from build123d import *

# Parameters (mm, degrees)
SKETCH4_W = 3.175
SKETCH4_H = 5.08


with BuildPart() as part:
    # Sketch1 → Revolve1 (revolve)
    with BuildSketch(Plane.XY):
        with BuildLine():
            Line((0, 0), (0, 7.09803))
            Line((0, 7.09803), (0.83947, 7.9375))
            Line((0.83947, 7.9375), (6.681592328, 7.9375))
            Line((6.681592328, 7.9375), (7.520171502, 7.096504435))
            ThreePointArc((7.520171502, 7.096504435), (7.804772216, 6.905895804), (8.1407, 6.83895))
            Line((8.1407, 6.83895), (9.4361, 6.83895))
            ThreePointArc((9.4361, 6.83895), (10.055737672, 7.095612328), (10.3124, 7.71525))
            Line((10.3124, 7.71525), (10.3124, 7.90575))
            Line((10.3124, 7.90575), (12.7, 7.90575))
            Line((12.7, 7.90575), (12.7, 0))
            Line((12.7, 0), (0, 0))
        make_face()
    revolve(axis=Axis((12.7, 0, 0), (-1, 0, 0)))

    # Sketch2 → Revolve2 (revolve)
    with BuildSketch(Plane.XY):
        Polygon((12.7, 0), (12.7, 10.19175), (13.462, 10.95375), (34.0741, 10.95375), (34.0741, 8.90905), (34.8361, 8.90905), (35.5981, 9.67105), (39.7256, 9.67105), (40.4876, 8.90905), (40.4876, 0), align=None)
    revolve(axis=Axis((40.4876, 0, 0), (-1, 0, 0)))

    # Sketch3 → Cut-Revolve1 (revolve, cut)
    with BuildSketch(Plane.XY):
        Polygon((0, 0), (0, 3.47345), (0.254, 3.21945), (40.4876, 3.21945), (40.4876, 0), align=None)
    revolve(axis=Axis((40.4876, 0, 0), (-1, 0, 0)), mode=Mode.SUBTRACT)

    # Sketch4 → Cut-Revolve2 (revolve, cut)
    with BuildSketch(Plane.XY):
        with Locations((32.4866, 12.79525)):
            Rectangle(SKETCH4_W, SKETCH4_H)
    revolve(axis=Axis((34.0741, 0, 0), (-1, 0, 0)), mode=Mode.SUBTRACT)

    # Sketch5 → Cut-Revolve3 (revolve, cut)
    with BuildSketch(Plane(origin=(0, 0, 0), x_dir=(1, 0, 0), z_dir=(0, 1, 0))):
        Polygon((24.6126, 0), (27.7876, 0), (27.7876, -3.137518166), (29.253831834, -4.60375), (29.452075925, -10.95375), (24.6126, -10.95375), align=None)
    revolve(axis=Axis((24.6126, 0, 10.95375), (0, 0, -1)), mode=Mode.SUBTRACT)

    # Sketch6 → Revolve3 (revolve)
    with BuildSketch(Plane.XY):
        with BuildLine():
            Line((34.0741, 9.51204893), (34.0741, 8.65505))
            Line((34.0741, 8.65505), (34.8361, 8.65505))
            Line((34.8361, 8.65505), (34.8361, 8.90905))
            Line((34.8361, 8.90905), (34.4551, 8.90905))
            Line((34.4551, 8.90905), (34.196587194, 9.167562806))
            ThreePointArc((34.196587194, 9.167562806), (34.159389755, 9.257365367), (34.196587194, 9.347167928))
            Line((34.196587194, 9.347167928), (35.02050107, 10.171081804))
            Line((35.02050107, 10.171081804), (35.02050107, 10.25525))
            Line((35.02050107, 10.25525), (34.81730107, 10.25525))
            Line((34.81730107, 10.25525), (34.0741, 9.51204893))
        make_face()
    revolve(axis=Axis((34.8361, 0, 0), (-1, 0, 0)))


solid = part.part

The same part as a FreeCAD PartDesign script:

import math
import FreeCAD as App
import Part
import Sketcher
from FreeCAD import Vector
Q = App.Units.Quantity


def add_polygon(sketch, points):
    """Adds a closed chain of lines whose ends are joined by coincident constraints."""
    first, n = sketch.GeometryCount, len(points)
    for a, b in zip(points, points[1:] + points[:1]):
        sketch.addGeometry(Part.LineSegment(App.Vector(*a, 0), App.Vector(*b, 0)), False)
    for i in range(n):
        sketch.addConstraint(Sketcher.Constraint("Coincident", first + i, 2, first + (i + 1) % n, 1))

doc = App.newDocument("Part")
body = doc.addObject("PartDesign::Body", "Body")

# Sketch on XY plane
sketch1 = doc.addObject("Sketcher::SketchObject", "Sketch")
body.addObject(sketch1)
sketch1.AttachmentSupport = (doc.XY_Plane, [""])
sketch1.MapMode = "FlatFace"
sketch1.addGeometry(Part.LineSegment(Vector(0, 7.1, 0), Vector(0, 0, 0)), False)
sketch1.addGeometry(Part.LineSegment(Vector(0, 0, 0), Vector(12.7, 0, 0)), False)
sketch1.addGeometry(Part.LineSegment(Vector(12.7, 0, 0), Vector(12.7, 7.91, 0)), False)
sketch1.addGeometry(Part.LineSegment(Vector(12.7, 7.91, 0), Vector(10.31, 7.91, 0)), False)
sketch1.addGeometry(Part.LineSegment(Vector(10.31, 7.91, 0), Vector(10.31, 7.72, 0)), False)
sketch1.addGeometry(Part.ArcOfCircle(Part.Circle(Vector(9.44, 7.72, 0), Vector(0, 0, 1), 0.88), math.radians(-90), math.radians(0)), False)
sketch1.addGeometry(Part.LineSegment(Vector(9.44, 6.84, 0), Vector(8.14, 6.84, 0)), False)
sketch1.addGeometry(Part.ArcOfCircle(Part.Circle(Vector(8.14, 7.72, 0), Vector(0, 0, 1), 0.88), math.radians(-135), math.radians(-90)), False)
sketch1.addGeometry(Part.LineSegment(Vector(7.52, 7.1, 0), Vector(6.68, 7.94, 0)), False)
sketch1.addGeometry(Part.LineSegment(Vector(6.68, 7.94, 0), Vector(0.84, 7.94, 0)), False)
sketch1.addGeometry(Part.LineSegment(Vector(0.84, 7.94, 0), Vector(0, 7.1, 0)), False)
sketch1.addConstraint(Sketcher.Constraint("Coincident", 0, 2, 1, 1))
sketch1.addConstraint(Sketcher.Constraint("Coincident", 1, 2, 2, 1))
sketch1.addConstraint(Sketcher.Constraint("Coincident", 2, 2, 3, 1))
sketch1.addConstraint(Sketcher.Constraint("Coincident", 3, 2, 4, 1))
sketch1.addConstraint(Sketcher.Constraint("Tangent", 4, 2, 5, 2))
sketch1.addConstraint(Sketcher.Constraint("Tangent", 5, 1, 6, 1))
sketch1.addConstraint(Sketcher.Constraint("Tangent", 6, 2, 7, 2))
sketch1.addConstraint(Sketcher.Constraint("Tangent", 7, 1, 8, 1))
sketch1.addConstraint(Sketcher.Constraint("Coincident", 8, 2, 9, 1))
sketch1.addConstraint(Sketcher.Constraint("Coincident", 9, 2, 10, 1))
sketch1.addConstraint(Sketcher.Constraint("Coincident", 10, 2, 0, 1))
sketch1.addConstraint(Sketcher.Constraint("Vertical", 0))
sketch1.addConstraint(Sketcher.Constraint("Horizontal", 1))
sketch1.addConstraint(Sketcher.Constraint("Vertical", 2))
sketch1.addConstraint(Sketcher.Constraint("Horizontal", 3))
sketch1.addConstraint(Sketcher.Constraint("Vertical", 4))
sketch1.addConstraint(Sketcher.Constraint("Horizontal", 6))
sketch1.addConstraint(Sketcher.Constraint("Horizontal", 9))
sketch1.addConstraint(Sketcher.Constraint("Coincident", 0, 2, -1, 1))
sketch1.addConstraint(Sketcher.Constraint("Equal", 5, 7))
sketch1.addConstraint(Sketcher.Constraint("DistanceX", 1, 1, 1, 2, Q("0.5 in")))
sketch1.addConstraint(Sketcher.Constraint("Angle", 10, Q("-135 deg")))
sketch1.addConstraint(Sketcher.Constraint("Radius", 5, Q("0.0345 in")))
sketch1.addConstraint(Sketcher.Constraint("DistanceX", 3, 2, 3, 1, Q("0.094 in")))
sketch1.addConstraint(Sketcher.Constraint("DistanceX", 6, 2, 6, 1, Q("0.051 in")))
sketch1.addConstraint(Sketcher.Constraint("DistanceY", 4, 2, 4, 1, Q("0.0075 in")))
sketch1.addConstraint(Sketcher.Constraint("DistanceY", -1, 1, 8, 2, Q("0.3125 in")))
sketch1.addConstraint(Sketcher.Constraint("DistanceY", 6, 2, 10, 2, Q("0.0102 in")))
sketch1.addConstraint(Sketcher.Constraint("DistanceY", 0, 2, 0, 1, 7.09803))
sketch1.addConstraint(Sketcher.Constraint("DistanceX", 9, 2, 7, 1, 6.680702))
revolution = doc.addObject("PartDesign::Revolution", "Revolution")
body.addObject(revolution)
revolution.Profile = sketch1
revolution.ReferenceAxis = (sketch1, ["H_Axis"])
revolution.Angle = 360

# Sketch on XY plane
sketch2 = doc.addObject("Sketcher::SketchObject", "Sketch001")
body.addObject(sketch2)
sketch2.AttachmentSupport = (doc.XY_Plane, [""])
sketch2.MapMode = "FlatFace"
add_polygon(sketch2, [(12.7, 10.2), (12.7, 0), (40.5, 0), (40.5, 8.9), (39.7, 9.7), (35.6, 9.7), (34.8, 8.9), (34.1, 8.9), (34.1, 11), (13.5, 11)])  # lines 0-9
sketch2.addConstraint(Sketcher.Constraint("Vertical", 0))
sketch2.addConstraint(Sketcher.Constraint("Horizontal", 1))
sketch2.addConstraint(Sketcher.Constraint("Vertical", 2))
sketch2.addConstraint(Sketcher.Constraint("Horizontal", 4))
sketch2.addConstraint(Sketcher.Constraint("Horizontal", 6))
sketch2.addConstraint(Sketcher.Constraint("Vertical", 7))
sketch2.addConstraint(Sketcher.Constraint("Horizontal", 8))
sketch2.addConstraint(Sketcher.Constraint("PointOnObject", 0, 2, -1))
sketch2.addConstraint(Sketcher.Constraint("Perpendicular", 3, 5))
sketch2.addConstraint(Sketcher.Constraint("Parallel", 5, 9))
sketch2.addConstraint(Sketcher.Constraint("Horizontal", 2, 2, 5, 2))
sketch2.addConstraint(Sketcher.Constraint("Equal", 3, 5))
sketch2.addConstraint(Sketcher.Constraint("Equal", 5, 9))
sketch2.addConstraint(Sketcher.Constraint("DistanceX", 6, 2, 6, 1, Q("0.03 in")))
sketch2.addConstraint(Sketcher.Constraint("DistanceX", -1, 1, 0, 2, Q("0.5 in")))
sketch2.addConstraint(Sketcher.Constraint("DistanceX", 1, 1, 1, 2, Q("1.094 in")))
sketch2.addConstraint(Sketcher.Constraint("DistanceX", -1, 1, 8, 2, Q("0.53 in")))
sketch2.addConstraint(Sketcher.Constraint("DistanceX", 4, 2, 4, 1, Q("0.1625 in")))
sketch2.addConstraint(Sketcher.Constraint("DistanceY", 7, 1, 7, 2, Q("0.0805 in")))
sketch2.addConstraint(Sketcher.Constraint("DistanceY", 0, 2, 0, 1, 10.19175))
revolution2 = doc.addObject("PartDesign::Revolution", "Revolution001")
body.addObject(revolution2)
revolution2.Profile = sketch2
revolution2.ReferenceAxis = (sketch2, ["H_Axis"])
revolution2.Angle = 360

# Sketch on XY plane
sketch3 = doc.addObject("Sketcher::SketchObject", "Sketch002")
body.addObject(sketch3)
sketch3.AttachmentSupport = (doc.XY_Plane, [""])
sketch3.MapMode = "FlatFace"
add_polygon(sketch3, [(0, 3.47), (0, 0), (40.49, 0), (40.49, 3.22), (0.25, 3.22)])  # lines 0-4
sketch3.addConstraint(Sketcher.Constraint("Vertical", 0))
sketch3.addConstraint(Sketcher.Constraint("Horizontal", 1))
sketch3.addConstraint(Sketcher.Constraint("Vertical", 2))
sketch3.addConstraint(Sketcher.Constraint("Horizontal", 3))
sketch3.addConstraint(Sketcher.Constraint("Coincident", 0, 2, -1, 1))
sketch3.addConstraint(Sketcher.Constraint("Angle", 4, Q("135 deg")))
sketch3.addConstraint(Sketcher.Constraint("DistanceX", 1, 1, 1, 2, Q("1.594 in")))
sketch3.addConstraint(Sketcher.Constraint("DistanceX", 3, 2, 3, 1, Q("1.584 in")))
sketch3.addConstraint(Sketcher.Constraint("DistanceY", 0, 2, 0, 1, 3.47345))
groove = doc.addObject("PartDesign::Groove", "Groove")
body.addObject(groove)
groove.Profile = sketch3
groove.ReferenceAxis = (sketch3, ["H_Axis"])
groove.Angle = 360

# Sketch on XY plane
sketch4 = doc.addObject("Sketcher::SketchObject", "Sketch003")
body.addObject(sketch4)
sketch4.AttachmentSupport = (doc.XY_Plane, [""])
sketch4.MapMode = "FlatFace"
add_polygon(sketch4, [(30.9, 15.3), (30.9, 10.3), (34.1, 10.3), (34.1, 15.3)])  # lines 0-3
sketch4.addConstraint(Sketcher.Constraint("Vertical", 0))
sketch4.addConstraint(Sketcher.Constraint("Horizontal", 1))
sketch4.addConstraint(Sketcher.Constraint("Vertical", 2))
sketch4.addConstraint(Sketcher.Constraint("Horizontal", 3))
sketch4.addConstraint(Sketcher.Constraint("DistanceY", 0, 2, 0, 1, Q("0.2 in")))
sketch4.addConstraint(Sketcher.Constraint("DistanceX", 1, 1, 1, 2, Q("0.125 in")))
sketch4.addConstraint(Sketcher.Constraint("DistanceX", -1, 1, 0, 2, Q("1.2165 in")))
sketch4.addConstraint(Sketcher.Constraint("DistanceY", -1, 1, 0, 2, 10.25525))
groove2 = doc.addObject("PartDesign::Groove", "Groove001")
body.addObject(groove2)
groove2.Profile = sketch4
groove2.ReferenceAxis = (sketch4, ["H_Axis"])
groove2.Angle = 360

# Sketch on XZ plane
sketch5 = doc.addObject("Sketcher::SketchObject", "Sketch004")
body.addObject(sketch5)
sketch5.AttachmentSupport = (doc.XZ_Plane, [""])
sketch5.MapMode = "FlatFace"
add_polygon(sketch5, [(27.8, 0), (24.6, 0), (24.6, 11), (29.5, 11), (29.3, 4.6), (27.8, 3.1)])  # lines 0-5
sketch5.addGeometry(Part.LineSegment(Vector(24.6, 11, 0), Vector(24.6, 0, 0)), True)  # axis
sketch5.addConstraint(Sketcher.Constraint("Horizontal", 0))
sketch5.addConstraint(Sketcher.Constraint("Vertical", 1))
sketch5.addConstraint(Sketcher.Constraint("Horizontal", 2))
sketch5.addConstraint(Sketcher.Constraint("Vertical", 5))
sketch5.addConstraint(Sketcher.Constraint("Vertical", 6))
sketch5.addConstraint(Sketcher.Constraint("Coincident", 6, 1, 1, 2))
sketch5.addConstraint(Sketcher.Constraint("PointOnObject", 0, 2, -1))
sketch5.addConstraint(Sketcher.Constraint("PointOnObject", 6, 2, -1))
sketch5.addConstraint(Sketcher.Constraint("Angle", 4, Q("-135 deg")))
sketch5.addConstraint(Sketcher.Constraint("DistanceX", 0, 2, 0, 1, Q("0.125 in")))
sketch5.addConstraint(Sketcher.Constraint("DistanceY", 3, 2, 2, 2, Q("0.25 in")))
sketch5.addConstraint(Sketcher.Constraint("DistanceX", -1, 1, 0, 2, Q("0.969 in")))
sketch5.addConstraint(Sketcher.Constraint("DistanceY", 1, 1, 1, 2, 10.95375))
sketch5.addConstraint(Sketcher.Constraint("DistanceY", 5, 2, 5, 1, 3.137518))
sketch5.addConstraint(Sketcher.Constraint("DistanceX", 2, 1, 2, 2, 4.839476))
groove3 = doc.addObject("PartDesign::Groove", "Groove002")
body.addObject(groove3)
groove3.Profile = sketch5
groove3.ReferenceAxis = (sketch5, ["Axis0"])
groove3.Angle = 360

# Sketch on XY plane
sketch6 = doc.addObject("Sketcher::SketchObject", "Sketch005")
body.addObject(sketch6)
sketch6.AttachmentSupport = (doc.XY_Plane, [""])
sketch6.MapMode = "FlatFace"
sketch6.addGeometry(Part.LineSegment(Vector(34.07, 9.51, 0), Vector(34.07, 8.66, 0)), False)
sketch6.addGeometry(Part.LineSegment(Vector(34.07, 8.66, 0), Vector(34.84, 8.66, 0)), False)
sketch6.addGeometry(Part.LineSegment(Vector(34.84, 8.66, 0), Vector(34.84, 8.91, 0)), False)
sketch6.addGeometry(Part.LineSegment(Vector(34.84, 8.91, 0), Vector(34.46, 8.91, 0)), False)
sketch6.addGeometry(Part.LineSegment(Vector(34.46, 8.91, 0), Vector(34.2, 9.17, 0)), False)
sketch6.addGeometry(Part.ArcOfCircle(Part.Circle(Vector(34.29, 9.26, 0), Vector(0, 0, 1), 0.13), math.radians(135), math.radians(225)), False)
sketch6.addGeometry(Part.LineSegment(Vector(34.2, 9.35, 0), Vector(35.02, 10.17, 0)), False)
sketch6.addGeometry(Part.LineSegment(Vector(35.02, 10.17, 0), Vector(35.02, 10.26, 0)), False)
sketch6.addGeometry(Part.LineSegment(Vector(35.02, 10.26, 0), Vector(34.82, 10.26, 0)), False)
sketch6.addGeometry(Part.LineSegment(Vector(34.82, 10.26, 0), Vector(34.07, 9.51, 0)), False)
sketch6.addConstraint(Sketcher.Constraint("Coincident", 0, 2, 1, 1))
sketch6.addConstraint(Sketcher.Constraint("Coincident", 1, 2, 2, 1))
sketch6.addConstraint(Sketcher.Constraint("Coincident", 2, 2, 3, 1))
sketch6.addConstraint(Sketcher.Constraint("Coincident", 3, 2, 4, 1))
sketch6.addConstraint(Sketcher.Constraint("Tangent", 4, 2, 5, 2))
sketch6.addConstraint(Sketcher.Constraint("Tangent", 5, 1, 6, 1))
sketch6.addConstraint(Sketcher.Constraint("Coincident", 6, 2, 7, 1))
sketch6.addConstraint(Sketcher.Constraint("Coincident", 7, 2, 8, 1))
sketch6.addConstraint(Sketcher.Constraint("Coincident", 8, 2, 9, 1))
sketch6.addConstraint(Sketcher.Constraint("Coincident", 9, 2, 0, 1))
sketch6.addConstraint(Sketcher.Constraint("Vertical", 0))
sketch6.addConstraint(Sketcher.Constraint("Horizontal", 1))
sketch6.addConstraint(Sketcher.Constraint("Vertical", 2))
sketch6.addConstraint(Sketcher.Constraint("Horizontal", 3))
sketch6.addConstraint(Sketcher.Constraint("Vertical", 7))
sketch6.addConstraint(Sketcher.Constraint("Horizontal", 8))
sketch6.addConstraint(Sketcher.Constraint("Perpendicular", 4, 6))
sketch6.addConstraint(Sketcher.Constraint("Parallel", 6, 9))
sketch6.addConstraint(Sketcher.Constraint("Vertical", 4, 2, 5, 1))
sketch6.addConstraint(Sketcher.Constraint("Radius", 5, Q("0.005 in")))
sketch6.addConstraint(Sketcher.Constraint("DistanceX", 1, 1, 1, 2, Q("0.03 in")))
sketch6.addConstraint(Sketcher.Constraint("DistanceY", 2, 1, 2, 2, Q("0.01 in")))
sketch6.addConstraint(Sketcher.Constraint("DistanceX", 3, 2, 3, 1, Q("0.015 in")))
sketch6.addConstraint(Sketcher.Constraint("DistanceX", 8, 2, 8, 1, Q("0.008 in")))
sketch6.addConstraint(Sketcher.Constraint("DistanceY", 2, 2, 7, 2, Q("0.053 in")))
sketch6.addConstraint(Sketcher.Constraint("DistanceY", 0, 2, 0, 1, 0.856999))
sketch6.addConstraint(Sketcher.Constraint("DistanceX", -1, 1, 0, 2, Q("1.3415 in")))
sketch6.addConstraint(Sketcher.Constraint("DistanceY", 7, 1, 7, 2, 0.084168))
sketch6.addConstraint(Sketcher.Constraint("DistanceY", -1, 1, 0, 2, 8.65505))
revolution3 = doc.addObject("PartDesign::Revolution", "Revolution002")
body.addObject(revolution3)
revolution3.Profile = sketch6
revolution3.ReferenceAxis = (sketch6, ["H_Axis"])
revolution3.Angle = 360

doc.recompute()
